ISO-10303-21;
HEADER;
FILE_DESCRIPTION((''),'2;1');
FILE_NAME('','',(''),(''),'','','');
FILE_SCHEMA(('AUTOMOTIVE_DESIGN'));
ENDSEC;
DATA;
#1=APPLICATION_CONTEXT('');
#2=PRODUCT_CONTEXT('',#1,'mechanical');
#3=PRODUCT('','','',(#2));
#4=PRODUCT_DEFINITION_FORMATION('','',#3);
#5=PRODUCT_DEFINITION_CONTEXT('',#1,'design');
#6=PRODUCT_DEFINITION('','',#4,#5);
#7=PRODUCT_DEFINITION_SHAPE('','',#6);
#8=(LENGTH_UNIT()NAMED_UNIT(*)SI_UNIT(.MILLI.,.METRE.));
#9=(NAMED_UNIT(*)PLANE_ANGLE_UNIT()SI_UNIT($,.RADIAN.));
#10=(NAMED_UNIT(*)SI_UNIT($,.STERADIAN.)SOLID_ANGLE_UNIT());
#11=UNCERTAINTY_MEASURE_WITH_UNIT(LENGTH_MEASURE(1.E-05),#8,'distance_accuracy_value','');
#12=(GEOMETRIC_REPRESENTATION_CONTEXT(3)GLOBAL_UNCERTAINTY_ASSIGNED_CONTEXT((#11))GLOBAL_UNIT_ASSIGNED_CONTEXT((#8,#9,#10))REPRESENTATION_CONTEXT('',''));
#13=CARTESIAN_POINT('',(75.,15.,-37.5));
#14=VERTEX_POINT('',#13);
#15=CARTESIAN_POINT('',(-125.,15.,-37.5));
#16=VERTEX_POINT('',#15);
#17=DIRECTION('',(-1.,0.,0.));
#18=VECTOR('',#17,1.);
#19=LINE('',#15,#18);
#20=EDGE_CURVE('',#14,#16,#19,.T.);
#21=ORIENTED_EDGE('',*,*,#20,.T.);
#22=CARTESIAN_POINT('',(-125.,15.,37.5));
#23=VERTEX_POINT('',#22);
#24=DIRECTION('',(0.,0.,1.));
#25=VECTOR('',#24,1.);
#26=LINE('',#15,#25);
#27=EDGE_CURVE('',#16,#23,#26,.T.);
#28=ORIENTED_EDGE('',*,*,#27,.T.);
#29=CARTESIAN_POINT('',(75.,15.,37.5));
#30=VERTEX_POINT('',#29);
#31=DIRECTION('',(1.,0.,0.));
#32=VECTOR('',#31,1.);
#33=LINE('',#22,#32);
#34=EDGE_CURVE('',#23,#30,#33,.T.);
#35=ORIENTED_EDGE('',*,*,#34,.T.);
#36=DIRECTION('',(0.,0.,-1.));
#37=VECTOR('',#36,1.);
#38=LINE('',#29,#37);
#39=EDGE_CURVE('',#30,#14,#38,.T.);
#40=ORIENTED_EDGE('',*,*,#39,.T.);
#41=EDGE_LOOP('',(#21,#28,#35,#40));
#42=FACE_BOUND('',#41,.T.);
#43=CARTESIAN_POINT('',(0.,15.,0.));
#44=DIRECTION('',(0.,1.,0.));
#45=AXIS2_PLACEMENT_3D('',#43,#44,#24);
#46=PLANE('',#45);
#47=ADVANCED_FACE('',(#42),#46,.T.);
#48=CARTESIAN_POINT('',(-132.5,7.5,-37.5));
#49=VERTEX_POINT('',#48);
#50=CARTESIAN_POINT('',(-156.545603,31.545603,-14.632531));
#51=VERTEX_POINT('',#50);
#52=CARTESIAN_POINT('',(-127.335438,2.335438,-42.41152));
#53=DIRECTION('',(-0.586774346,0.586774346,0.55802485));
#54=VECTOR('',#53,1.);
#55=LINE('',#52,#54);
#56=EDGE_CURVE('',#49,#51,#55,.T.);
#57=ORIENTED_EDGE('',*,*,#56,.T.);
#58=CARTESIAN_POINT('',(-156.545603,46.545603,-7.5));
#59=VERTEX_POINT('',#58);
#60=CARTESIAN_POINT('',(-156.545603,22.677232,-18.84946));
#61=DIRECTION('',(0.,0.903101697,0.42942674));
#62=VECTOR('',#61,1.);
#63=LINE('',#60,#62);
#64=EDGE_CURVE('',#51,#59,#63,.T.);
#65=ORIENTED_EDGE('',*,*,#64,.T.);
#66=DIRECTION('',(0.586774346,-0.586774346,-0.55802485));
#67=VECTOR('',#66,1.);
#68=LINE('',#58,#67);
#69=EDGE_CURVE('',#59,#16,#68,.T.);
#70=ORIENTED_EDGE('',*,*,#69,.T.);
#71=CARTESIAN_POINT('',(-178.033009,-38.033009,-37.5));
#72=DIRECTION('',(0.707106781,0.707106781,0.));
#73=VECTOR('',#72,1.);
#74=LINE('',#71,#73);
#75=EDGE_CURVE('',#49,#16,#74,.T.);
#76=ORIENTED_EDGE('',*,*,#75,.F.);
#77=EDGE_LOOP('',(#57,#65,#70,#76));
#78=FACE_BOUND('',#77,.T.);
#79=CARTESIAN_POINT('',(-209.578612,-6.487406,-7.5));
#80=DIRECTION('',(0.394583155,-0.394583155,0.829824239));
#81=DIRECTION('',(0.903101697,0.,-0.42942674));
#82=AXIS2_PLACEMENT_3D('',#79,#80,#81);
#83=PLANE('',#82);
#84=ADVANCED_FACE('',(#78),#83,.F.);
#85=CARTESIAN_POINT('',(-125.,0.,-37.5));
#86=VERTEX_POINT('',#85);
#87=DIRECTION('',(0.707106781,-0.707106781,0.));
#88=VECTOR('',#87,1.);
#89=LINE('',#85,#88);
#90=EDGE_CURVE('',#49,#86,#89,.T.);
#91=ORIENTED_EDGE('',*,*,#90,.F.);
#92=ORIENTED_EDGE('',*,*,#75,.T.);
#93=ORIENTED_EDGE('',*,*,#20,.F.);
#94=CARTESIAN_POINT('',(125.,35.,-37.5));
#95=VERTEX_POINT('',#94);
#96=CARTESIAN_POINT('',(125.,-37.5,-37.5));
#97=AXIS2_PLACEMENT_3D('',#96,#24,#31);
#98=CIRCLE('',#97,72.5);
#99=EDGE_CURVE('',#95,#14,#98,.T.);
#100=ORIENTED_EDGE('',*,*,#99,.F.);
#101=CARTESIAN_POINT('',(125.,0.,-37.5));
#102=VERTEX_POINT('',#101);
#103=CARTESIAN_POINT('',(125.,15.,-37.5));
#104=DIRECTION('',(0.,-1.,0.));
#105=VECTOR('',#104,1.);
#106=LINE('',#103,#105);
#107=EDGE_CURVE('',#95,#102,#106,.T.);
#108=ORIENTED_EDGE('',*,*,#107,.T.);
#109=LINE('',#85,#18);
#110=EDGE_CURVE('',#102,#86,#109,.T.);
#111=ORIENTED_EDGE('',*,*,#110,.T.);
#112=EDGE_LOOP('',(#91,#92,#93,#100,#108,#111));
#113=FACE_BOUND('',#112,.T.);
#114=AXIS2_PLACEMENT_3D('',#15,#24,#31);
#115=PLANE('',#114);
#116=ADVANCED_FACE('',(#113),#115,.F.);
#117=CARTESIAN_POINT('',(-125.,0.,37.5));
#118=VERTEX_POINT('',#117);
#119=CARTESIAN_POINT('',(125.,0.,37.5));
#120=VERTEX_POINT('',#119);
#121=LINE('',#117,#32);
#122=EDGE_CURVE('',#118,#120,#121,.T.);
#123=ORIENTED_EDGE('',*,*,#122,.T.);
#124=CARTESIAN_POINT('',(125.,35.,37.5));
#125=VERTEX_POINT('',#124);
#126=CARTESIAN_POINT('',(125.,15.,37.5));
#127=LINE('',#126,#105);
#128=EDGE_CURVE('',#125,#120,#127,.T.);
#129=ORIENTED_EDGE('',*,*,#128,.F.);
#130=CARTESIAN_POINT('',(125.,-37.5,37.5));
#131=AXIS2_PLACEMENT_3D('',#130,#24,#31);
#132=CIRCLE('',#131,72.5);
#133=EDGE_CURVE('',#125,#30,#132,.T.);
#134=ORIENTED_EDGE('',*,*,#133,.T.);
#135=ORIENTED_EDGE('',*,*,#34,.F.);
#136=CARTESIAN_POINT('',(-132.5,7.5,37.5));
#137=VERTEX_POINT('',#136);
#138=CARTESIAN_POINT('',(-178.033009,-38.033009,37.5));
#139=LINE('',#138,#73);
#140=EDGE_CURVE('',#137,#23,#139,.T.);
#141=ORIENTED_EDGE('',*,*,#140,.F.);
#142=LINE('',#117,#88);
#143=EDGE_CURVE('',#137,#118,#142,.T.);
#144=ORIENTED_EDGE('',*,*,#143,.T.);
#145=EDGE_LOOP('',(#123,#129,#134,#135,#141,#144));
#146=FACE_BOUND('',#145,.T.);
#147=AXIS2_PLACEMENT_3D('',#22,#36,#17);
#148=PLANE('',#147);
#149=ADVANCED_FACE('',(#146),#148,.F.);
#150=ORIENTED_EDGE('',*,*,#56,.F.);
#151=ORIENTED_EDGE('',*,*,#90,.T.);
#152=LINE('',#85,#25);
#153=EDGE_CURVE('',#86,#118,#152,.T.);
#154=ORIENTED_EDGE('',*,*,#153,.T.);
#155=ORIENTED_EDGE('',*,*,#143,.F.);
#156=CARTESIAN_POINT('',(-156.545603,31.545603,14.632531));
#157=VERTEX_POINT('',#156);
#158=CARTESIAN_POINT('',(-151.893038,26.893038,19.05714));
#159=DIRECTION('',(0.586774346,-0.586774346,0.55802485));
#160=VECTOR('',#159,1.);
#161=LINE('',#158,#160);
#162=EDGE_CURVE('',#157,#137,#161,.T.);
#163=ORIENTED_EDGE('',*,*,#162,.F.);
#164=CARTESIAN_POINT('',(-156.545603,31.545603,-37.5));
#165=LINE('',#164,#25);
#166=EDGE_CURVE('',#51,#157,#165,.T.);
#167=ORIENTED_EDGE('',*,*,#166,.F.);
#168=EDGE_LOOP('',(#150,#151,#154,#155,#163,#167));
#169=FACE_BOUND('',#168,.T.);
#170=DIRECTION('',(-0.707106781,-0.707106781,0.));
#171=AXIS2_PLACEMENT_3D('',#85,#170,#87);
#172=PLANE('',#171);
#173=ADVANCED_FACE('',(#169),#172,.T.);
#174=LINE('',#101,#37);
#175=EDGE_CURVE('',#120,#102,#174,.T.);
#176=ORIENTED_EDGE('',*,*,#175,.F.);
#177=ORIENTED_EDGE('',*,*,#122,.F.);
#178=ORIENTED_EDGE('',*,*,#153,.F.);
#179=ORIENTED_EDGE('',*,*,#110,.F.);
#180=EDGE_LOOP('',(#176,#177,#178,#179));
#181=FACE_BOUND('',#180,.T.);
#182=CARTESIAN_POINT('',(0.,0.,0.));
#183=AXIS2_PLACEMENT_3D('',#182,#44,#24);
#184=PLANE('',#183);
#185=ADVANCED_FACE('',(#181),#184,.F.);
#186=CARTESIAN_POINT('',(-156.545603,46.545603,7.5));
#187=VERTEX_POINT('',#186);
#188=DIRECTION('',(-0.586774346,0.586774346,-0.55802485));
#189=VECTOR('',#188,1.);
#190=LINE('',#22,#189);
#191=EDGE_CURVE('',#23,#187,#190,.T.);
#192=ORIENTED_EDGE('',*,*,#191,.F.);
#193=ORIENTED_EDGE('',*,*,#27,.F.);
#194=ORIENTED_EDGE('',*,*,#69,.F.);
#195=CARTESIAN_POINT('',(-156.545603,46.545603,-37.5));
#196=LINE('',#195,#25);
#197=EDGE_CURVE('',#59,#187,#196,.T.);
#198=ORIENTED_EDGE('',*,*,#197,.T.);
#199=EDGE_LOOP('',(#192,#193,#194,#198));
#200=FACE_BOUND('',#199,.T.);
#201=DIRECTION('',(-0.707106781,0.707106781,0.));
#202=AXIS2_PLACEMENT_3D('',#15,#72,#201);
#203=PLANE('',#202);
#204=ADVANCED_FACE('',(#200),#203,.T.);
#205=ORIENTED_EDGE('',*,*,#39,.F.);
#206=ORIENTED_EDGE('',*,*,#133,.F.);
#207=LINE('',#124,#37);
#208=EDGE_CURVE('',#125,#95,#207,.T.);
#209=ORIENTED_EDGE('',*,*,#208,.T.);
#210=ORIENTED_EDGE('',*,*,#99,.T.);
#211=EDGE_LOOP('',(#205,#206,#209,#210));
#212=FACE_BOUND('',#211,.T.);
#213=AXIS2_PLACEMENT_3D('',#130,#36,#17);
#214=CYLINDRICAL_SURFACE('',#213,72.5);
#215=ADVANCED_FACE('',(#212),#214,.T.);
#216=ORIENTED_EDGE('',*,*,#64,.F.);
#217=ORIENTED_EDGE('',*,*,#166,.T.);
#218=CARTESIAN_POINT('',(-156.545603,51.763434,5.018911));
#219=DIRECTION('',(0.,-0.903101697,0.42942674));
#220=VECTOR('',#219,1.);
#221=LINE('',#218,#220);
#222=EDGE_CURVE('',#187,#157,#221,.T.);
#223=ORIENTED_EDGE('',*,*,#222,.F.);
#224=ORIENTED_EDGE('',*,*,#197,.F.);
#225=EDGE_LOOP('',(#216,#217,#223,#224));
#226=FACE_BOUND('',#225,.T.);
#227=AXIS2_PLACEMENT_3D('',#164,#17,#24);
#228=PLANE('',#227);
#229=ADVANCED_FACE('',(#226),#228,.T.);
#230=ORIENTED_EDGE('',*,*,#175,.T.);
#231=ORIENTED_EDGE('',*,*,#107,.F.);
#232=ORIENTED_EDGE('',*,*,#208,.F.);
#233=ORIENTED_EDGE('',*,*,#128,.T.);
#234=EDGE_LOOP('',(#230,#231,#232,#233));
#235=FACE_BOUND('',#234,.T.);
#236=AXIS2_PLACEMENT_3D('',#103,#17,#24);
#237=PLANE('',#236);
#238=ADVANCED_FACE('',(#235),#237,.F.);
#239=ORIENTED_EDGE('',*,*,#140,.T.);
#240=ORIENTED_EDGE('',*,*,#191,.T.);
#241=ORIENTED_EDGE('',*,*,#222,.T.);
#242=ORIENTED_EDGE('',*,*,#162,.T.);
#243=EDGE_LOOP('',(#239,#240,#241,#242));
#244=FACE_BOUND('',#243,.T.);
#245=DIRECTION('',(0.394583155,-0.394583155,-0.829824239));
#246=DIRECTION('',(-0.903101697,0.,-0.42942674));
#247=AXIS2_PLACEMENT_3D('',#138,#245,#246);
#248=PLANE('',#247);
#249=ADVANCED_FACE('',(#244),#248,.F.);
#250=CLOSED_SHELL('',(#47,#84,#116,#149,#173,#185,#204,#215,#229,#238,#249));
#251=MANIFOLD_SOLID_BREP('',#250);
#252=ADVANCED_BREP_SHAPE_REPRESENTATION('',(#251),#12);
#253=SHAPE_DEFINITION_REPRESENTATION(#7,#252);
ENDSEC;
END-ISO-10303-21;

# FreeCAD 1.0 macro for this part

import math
import FreeCAD as App
import Part
import Sketcher
Q = App.Units.Quantity


def add_polygon(sketch, points):
    """Adds a closed chain of lines whose ends are joined by coincident constraints."""
    first, n = sketch.GeometryCount, len(points)
    for a, b in zip(points, points[1:] + points[:1]):
        sketch.addGeometry(Part.LineSegment(App.Vector(*a, 0), App.Vector(*b, 0)), False)
    for i in range(n):
        sketch.addConstraint(Sketcher.Constraint("Coincident", first + i, 2, first + (i + 1) % n, 1))

doc = App.newDocument("Part")
body = doc.addObject("PartDesign::Body", "Body")

sketch1 = doc.addObject("Sketcher::SketchObject", "Sketch")
body.addObject(sketch1)
sketch1.AttachmentSupport = (doc.XZ_Plane, [""])
sketch1.MapMode = "FlatFace"
add_polygon(sketch1, [(-125, -37.5), (-125, 37.5), (125, 37.5), (125, -37.5)])
sketch1.addConstraint([
    Sketcher.Constraint("Vertical", 0),
    Sketcher.Constraint("Horizontal", 1),
    Sketcher.Constraint("Vertical", 2),
    Sketcher.Constraint("Horizontal", 3),
    Sketcher.Constraint("Symmetric", 0, 2, 2, 2, -1, 1),
    Sketcher.Constraint("DistanceX", 1, 1, 1, 2, 250.0),
    Sketcher.Constraint("DistanceY", 0, 1, 0, 2, 75.0),
])
pad1 = doc.addObject("PartDesign::Pad", "Pad")
body.addObject(pad1)
pad1.Profile = sketch1
pad1.Length = 15
pad1.Reversed = True

sketch2 = doc.addObject("Sketcher::SketchObject", "Sketch001")
body.addObject(sketch2)
sketch2.AttachmentSupport = (doc.XY_Plane, [""])
sketch2.MapMode = "FlatFace"
sketch2.addGeometry([
    Part.LineSegment(App.Vector(125, 15, 0), App.Vector(125, 35, 0)),
    Part.ArcOfCircle(Part.Circle(App.Vector(125, -37.5, 0), App.Vector(0, 0, 1), 72.5), math.radians(90), math.radians(133.602819)),
    Part.LineSegment(App.Vector(75, 15, 0), App.Vector(125, 15, 0)),
], False)
sketch2.addConstraint([
    Sketcher.Constraint("Coincident", 0, 2, 1, 1),
    Sketcher.Constraint("Coincident", 1, 2, 2, 1),
    Sketcher.Constraint("Coincident", 2, 2, 0, 1),
    Sketcher.Constraint("Vertical", 0),
    Sketcher.Constraint("Horizontal", 2),
    Sketcher.Constraint("Vertical", 1, 3, 0, 2),
    Sketcher.Constraint("Radius", 1, 72.5),
    Sketcher.Constraint("DistanceX", 2, 1, 2, 2, 50.0),
    Sketcher.Constraint("DistanceX", -1, 1, 1, 3, 125.0),
    Sketcher.Constraint("DistanceY", -1, 1, 0, 2, 35.0),
])
pad2 = doc.addObject("PartDesign::Pad", "Pad001")
body.addObject(pad2)
pad2.Profile = sketch2
pad2.Length = 37.5
doc.recompute()

mirrored = doc.addObject("PartDesign::Mirrored", "Mirrored")
body.addObject(mirrored)
mirrored.Originals = [pad2]
mirrored.MirrorPlane = (doc.XY_Plane, [""])
body.Tip = mirrored

sketch3 = doc.addObject("Sketcher::SketchObject", "Sketch002")
body.addObject(sketch3)
sketch3.AttachmentSupport = (doc.XY_Plane, [""])
sketch3.MapMode = "FlatFace"
sketch3.AttachmentOffset = App.Placement(App.Vector(0, 0, 37.5), App.Rotation())
add_polygon(sketch3, [(-125, 0), (-125, 15), (-156.545603, 46.545603), (-156.545603, 31.545603)])
sketch3.addConstraint([
    Sketcher.Constraint("Vertical", 0),
    Sketcher.Constraint("Vertical", 2),
    Sketcher.Constraint("PointOnObject", 3, 2, -1),
    Sketcher.Constraint("Parallel", 1, 3),
    Sketcher.Constraint("DistanceY", 0, 1, 0, 2, 15.0),
    Sketcher.Constraint("Angle", 1, Q("135 deg")),
    Sketcher.Constraint("DistanceX", 0, 2, -1, 1, 125.0),
    Sketcher.Constraint("Distance", 1, 44.61222),
])
pad3 = doc.addObject("PartDesign::Pad", "Pad002")
body.addObject(pad3)
pad3.Profile = sketch3
pad3.Length = 75
pad3.Reversed = True

sketch4 = doc.addObject("Sketcher::SketchObject", "Sketch003")
body.addObject(sketch4)
sketch4.Placement = App.Placement(App.Vector(-55, -55, 0), App.Rotation(App.Vector(0, 0, -1), App.Vector(-0.707106781, 0.707106781, 0), App.Vector(0.707106781, 0.707106781, 0), "ZXY"))
add_polygon(sketch4, [(-37.5, 98.994949), (-7.5, 143.607169), (-37.5, 143.607169)])
add_polygon(sketch4, [(7.5, 143.607169), (37.5, 98.994949), (37.5, 143.607169)])
sketch4.addConstraint([
    Sketcher.Constraint("Horizontal", 1),
    Sketcher.Constraint("Vertical", 2),
    Sketcher.Constraint("Vertical", 4),
    Sketcher.Constraint("Horizontal", 5),
    Sketcher.Constraint("Symmetric", 2, 2, 3, 2, -2),
    Sketcher.Constraint("Symmetric", 0, 2, 5, 2, -2),
    Sketcher.Constraint("DistanceX", 1, 2, 1, 1, 30.0),
    Sketcher.Constraint("DistanceX", 0, 2, 3, 2, 45.0),
    Sketcher.Constraint("DistanceY", 2, 2, 2, 1, 44.61222),
    Sketcher.Constraint("DistanceY", -1, 1, 0, 2, 143.607169),
])
pocket1 = doc.addObject("PartDesign::Pocket", "Pocket")
body.addObject(pocket1)
pocket1.Profile = sketch4
pocket1.Length = 75

doc.recompute()
